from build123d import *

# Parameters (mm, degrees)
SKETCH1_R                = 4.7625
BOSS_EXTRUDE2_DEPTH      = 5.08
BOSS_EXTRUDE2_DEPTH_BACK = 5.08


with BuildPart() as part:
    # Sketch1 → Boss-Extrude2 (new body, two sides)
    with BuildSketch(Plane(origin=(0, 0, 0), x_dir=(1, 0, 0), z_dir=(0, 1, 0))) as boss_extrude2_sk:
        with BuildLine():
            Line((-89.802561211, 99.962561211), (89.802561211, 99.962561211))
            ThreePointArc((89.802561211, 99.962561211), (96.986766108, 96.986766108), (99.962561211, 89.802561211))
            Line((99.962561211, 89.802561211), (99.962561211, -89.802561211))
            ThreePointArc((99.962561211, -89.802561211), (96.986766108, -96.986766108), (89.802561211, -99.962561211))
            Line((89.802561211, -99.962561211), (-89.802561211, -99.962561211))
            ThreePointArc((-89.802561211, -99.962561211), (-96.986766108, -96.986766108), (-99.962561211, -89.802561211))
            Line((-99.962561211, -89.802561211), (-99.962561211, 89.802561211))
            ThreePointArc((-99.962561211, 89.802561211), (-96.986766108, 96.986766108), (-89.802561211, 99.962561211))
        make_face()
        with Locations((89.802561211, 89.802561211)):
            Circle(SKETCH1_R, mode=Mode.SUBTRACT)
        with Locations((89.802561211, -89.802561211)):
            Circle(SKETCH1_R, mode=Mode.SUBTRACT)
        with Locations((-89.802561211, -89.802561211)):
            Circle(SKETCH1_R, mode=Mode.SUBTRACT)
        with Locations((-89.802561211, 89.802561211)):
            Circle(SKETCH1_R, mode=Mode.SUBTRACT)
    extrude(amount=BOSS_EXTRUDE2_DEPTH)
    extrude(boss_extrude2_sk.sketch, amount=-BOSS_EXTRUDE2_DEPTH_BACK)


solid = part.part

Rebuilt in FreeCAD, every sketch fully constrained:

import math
import FreeCAD as App
import Part
import Sketcher
Q = App.Units.Quantity

doc = App.newDocument("Part")
body = doc.addObject("PartDesign::Body", "Body")

sketch1 = body.newObject("Sketcher::SketchObject", "Sketch")
sketch1.AttachmentSupport = (doc.getObject("XZ_Plane"), [""])
sketch1.MapMode = "FlatFace"
sketch1.addGeometry([
    Part.LineSegment(App.Vector(89.8, -100, 0), App.Vector(-89.8, -100, 0)),
    Part.ArcOfCircle(Part.Circle(App.Vector(-89.8, -89.8, 0), App.Vector(0, 0, 1), 10.2), math.radians(180), math.radians(270)),
    Part.LineSegment(App.Vector(-100, -89.8, 0), App.Vector(-100, 89.8, 0)),
    Part.ArcOfCircle(Part.Circle(App.Vector(-89.8, 89.8, 0), App.Vector(0, 0, 1), 10.2), math.radians(90), math.radians(180)),
    Part.LineSegment(App.Vector(-89.8, 100, 0), App.Vector(89.8, 100, 0)),
    Part.ArcOfCircle(Part.Circle(App.Vector(89.8, 89.8, 0), App.Vector(0, 0, 1), 10.2), math.radians(0), math.radians(90)),
    Part.LineSegment(App.Vector(100, 89.8, 0), App.Vector(100, -89.8, 0)),
    Part.ArcOfCircle(Part.Circle(App.Vector(89.8, -89.8, 0), App.Vector(0, 0, 1), 10.2), math.radians(-90), math.radians(0)),
    Part.Circle(App.Vector(89.8, 89.8, 0), App.Vector(0, 0, 1), 4.8),
    Part.Circle(App.Vector(-89.8, 89.8, 0), App.Vector(0, 0, 1), 4.8),
    Part.Circle(App.Vector(89.8, -89.8, 0), App.Vector(0, 0, 1), 4.8),
    Part.Circle(App.Vector(-89.8, -89.8, 0), App.Vector(0, 0, 1), 4.8),
], False)
sketch1.addConstraint([
    Sketcher.Constraint("Tangent", 0, 2, 1, 2),
    Sketcher.Constraint("Tangent", 1, 1, 2, 1),
    Sketcher.Constraint("Tangent", 2, 2, 3, 2),
    Sketcher.Constraint("Tangent", 3, 1, 4, 1),
    Sketcher.Constraint("Tangent", 4, 2, 5, 2),
    Sketcher.Constraint("Tangent", 5, 1, 6, 1),
    Sketcher.Constraint("Tangent", 6, 2, 7, 2),
    Sketcher.Constraint("Tangent", 7, 1, 0, 1),
    Sketcher.Constraint("Horizontal", 0),
    Sketcher.Constraint("Vertical", 2),
    Sketcher.Constraint("Horizontal", 4),
    Sketcher.Constraint("Vertical", 6),
    Sketcher.Constraint("Coincident", 8, 3, 5, 3),
    Sketcher.Constraint("Coincident", 9, 3, 3, 3),
    Sketcher.Constraint("Coincident", 10, 3, 7, 3),
    Sketcher.Constraint("Coincident", 11, 3, 1, 3),
    Sketcher.Constraint("Equal", 1, 3),
    Sketcher.Constraint("Equal", 3, 5),
    Sketcher.Constraint("Equal", 5, 7),
    Sketcher.Constraint("Equal", 8, 9),
    Sketcher.Constraint("Equal", 9, 10),
    Sketcher.Constraint("Equal", 10, 11),
    Sketcher.Constraint("Symmetric", 1, 3, 5, 3, -1, 1),
    Sketcher.Constraint("Equal", 4, 2),
    Sketcher.Constraint("Radius", 1, Q("0.4 in")),
    Sketcher.Constraint("Diameter", 8, Q("0.375 in")),
    Sketcher.Constraint("DistanceX", 0, 2, 0, 1, Q("179.605122 mm")),
])
pad1 = body.newObject("PartDesign::Pad", "Pad")
pad1.Profile = sketch1
pad1.Type = "TwoLengths"
pad1.Length = Q("0.2 in")
pad1.Length2 = Q("0.2 in")
pad1.Reversed = True

doc.recompute()
